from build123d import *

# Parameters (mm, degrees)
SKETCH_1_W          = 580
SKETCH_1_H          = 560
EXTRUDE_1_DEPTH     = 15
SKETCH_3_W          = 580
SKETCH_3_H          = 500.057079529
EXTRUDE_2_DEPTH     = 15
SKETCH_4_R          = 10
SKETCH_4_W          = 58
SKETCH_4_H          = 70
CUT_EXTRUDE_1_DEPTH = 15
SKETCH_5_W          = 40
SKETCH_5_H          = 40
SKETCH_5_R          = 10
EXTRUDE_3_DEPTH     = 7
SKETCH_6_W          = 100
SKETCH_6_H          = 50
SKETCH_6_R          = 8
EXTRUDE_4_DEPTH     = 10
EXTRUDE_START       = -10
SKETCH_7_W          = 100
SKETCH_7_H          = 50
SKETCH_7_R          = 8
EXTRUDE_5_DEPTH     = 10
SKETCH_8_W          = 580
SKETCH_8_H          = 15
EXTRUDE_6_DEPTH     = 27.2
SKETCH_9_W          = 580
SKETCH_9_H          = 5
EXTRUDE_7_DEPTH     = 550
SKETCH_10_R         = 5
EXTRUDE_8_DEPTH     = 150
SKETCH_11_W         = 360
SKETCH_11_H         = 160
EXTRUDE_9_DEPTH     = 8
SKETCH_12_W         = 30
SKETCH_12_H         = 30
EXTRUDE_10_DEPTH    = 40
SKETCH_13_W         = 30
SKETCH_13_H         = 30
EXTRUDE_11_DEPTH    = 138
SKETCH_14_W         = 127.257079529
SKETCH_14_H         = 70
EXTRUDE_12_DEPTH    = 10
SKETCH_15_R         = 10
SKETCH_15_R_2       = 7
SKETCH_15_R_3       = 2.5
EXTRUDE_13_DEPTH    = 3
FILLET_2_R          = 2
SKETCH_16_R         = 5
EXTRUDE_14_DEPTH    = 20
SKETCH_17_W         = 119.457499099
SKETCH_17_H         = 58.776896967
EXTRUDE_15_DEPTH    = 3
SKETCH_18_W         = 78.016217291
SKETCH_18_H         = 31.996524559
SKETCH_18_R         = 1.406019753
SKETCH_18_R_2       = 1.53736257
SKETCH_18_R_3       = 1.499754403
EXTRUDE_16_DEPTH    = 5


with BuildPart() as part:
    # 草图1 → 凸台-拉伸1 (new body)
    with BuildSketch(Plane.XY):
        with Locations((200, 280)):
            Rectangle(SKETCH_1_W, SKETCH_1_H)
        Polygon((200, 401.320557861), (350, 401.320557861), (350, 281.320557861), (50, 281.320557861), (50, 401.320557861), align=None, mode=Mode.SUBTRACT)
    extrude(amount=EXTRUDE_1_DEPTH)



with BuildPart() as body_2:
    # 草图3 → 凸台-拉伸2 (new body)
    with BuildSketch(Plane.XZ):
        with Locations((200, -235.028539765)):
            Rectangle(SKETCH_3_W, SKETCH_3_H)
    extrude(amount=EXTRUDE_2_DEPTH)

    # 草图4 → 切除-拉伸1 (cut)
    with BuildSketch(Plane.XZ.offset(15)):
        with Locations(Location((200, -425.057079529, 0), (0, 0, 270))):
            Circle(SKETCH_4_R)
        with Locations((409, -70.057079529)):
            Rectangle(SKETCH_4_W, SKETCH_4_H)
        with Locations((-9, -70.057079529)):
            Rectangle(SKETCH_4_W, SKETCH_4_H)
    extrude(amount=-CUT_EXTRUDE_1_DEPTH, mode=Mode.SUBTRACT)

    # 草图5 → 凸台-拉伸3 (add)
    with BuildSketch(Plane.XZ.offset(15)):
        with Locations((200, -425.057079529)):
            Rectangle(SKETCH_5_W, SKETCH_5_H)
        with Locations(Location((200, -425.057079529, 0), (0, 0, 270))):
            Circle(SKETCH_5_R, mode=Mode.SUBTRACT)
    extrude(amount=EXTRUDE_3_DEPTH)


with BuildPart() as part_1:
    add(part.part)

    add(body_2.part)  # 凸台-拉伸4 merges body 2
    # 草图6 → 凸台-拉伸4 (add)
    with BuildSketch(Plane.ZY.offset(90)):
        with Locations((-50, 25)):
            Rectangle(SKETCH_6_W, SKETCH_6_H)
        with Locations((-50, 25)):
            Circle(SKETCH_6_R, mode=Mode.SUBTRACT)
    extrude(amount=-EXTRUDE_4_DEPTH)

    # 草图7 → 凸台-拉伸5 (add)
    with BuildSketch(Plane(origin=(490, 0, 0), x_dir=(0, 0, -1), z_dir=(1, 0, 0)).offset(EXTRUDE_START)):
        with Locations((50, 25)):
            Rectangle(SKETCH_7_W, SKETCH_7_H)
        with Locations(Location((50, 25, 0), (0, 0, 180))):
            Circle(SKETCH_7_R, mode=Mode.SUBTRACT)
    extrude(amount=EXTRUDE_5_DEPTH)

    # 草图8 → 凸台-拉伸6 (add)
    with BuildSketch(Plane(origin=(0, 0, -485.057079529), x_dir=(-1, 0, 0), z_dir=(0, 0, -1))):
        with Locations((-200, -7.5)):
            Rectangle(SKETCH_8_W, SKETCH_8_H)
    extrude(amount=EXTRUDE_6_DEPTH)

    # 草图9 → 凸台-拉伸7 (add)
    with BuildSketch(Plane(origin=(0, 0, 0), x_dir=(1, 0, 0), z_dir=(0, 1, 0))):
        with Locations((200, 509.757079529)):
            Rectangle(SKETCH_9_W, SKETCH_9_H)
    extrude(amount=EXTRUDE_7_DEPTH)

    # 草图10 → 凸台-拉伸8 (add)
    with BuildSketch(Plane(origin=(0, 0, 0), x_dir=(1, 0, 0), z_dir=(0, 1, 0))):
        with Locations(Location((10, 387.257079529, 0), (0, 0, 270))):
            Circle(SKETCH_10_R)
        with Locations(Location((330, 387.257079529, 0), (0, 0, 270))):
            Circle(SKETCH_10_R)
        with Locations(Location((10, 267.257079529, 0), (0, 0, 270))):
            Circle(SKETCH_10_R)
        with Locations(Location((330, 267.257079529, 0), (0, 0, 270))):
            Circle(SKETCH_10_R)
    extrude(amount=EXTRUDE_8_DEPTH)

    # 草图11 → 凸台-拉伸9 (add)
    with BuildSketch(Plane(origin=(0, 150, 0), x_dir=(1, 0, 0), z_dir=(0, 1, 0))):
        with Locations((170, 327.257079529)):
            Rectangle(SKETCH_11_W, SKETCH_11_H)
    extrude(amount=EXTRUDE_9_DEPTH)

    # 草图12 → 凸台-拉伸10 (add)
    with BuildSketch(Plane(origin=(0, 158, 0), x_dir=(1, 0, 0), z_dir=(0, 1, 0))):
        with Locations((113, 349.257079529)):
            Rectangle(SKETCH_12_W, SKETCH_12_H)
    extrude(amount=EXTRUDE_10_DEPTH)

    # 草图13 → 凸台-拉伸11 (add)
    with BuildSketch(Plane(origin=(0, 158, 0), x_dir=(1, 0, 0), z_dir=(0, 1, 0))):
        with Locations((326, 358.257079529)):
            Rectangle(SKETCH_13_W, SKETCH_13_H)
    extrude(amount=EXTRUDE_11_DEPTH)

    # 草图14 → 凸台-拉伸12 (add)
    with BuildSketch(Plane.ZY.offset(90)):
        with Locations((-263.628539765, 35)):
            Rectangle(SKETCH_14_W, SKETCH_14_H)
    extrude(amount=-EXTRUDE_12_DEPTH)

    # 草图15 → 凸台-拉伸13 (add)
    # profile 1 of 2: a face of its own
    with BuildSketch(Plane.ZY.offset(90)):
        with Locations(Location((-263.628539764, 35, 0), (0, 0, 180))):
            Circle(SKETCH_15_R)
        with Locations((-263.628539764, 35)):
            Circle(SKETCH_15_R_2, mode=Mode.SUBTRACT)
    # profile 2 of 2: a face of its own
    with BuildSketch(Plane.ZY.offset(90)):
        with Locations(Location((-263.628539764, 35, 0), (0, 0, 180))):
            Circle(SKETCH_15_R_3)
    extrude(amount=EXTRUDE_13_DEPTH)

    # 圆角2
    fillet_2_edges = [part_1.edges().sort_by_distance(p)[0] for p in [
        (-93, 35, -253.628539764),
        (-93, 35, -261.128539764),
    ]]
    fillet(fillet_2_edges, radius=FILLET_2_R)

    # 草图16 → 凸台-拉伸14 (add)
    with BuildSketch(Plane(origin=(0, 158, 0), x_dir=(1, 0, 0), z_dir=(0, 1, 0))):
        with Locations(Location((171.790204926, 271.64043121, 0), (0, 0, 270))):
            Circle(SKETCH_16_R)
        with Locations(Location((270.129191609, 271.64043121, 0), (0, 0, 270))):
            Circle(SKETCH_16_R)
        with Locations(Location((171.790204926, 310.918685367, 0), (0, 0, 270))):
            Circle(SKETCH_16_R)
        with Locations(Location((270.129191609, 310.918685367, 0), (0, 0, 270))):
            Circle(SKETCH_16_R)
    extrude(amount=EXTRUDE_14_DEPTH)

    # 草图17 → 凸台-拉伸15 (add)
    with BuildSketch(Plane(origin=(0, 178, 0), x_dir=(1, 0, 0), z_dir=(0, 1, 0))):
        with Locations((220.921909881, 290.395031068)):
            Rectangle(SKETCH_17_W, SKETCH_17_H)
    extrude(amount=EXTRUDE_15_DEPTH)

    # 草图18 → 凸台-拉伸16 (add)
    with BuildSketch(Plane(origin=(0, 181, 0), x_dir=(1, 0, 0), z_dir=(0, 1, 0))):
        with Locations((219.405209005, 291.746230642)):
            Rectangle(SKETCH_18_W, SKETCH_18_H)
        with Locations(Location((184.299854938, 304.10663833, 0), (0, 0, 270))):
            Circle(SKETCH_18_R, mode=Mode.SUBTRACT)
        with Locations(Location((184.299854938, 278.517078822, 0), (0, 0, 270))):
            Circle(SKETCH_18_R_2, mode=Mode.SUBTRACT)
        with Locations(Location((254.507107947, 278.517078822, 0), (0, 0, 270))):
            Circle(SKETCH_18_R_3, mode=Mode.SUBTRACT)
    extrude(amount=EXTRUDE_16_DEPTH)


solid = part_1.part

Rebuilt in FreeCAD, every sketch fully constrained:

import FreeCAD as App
import Part
import Sketcher


def edges_at(feature, points):
    """Names of the edges that pass closest to the given points."""
    edges = feature.Shape.Edges
    near = lambda p: min(range(len(edges)), key=lambda i: edges[i].distToShape(Part.Vertex(*p))[0])
    return sorted({f"Edge{near(p) + 1}" for p in points})

doc = App.newDocument("Part")
body = doc.addObject("PartDesign::Body", "Body")

sketch1 = doc.addObject("Sketcher::SketchObject", "Sketch")
body.addObject(sketch1)
sketch1.AttachmentSupport = (doc.XY_Plane, [""])
sketch1.MapMode = "FlatFace"
sketch1.addGeometry([
    Part.LineSegment(App.Vector(-90, 560, 0), App.Vector(-90, 0, 0)),
    Part.LineSegment(App.Vector(-90, 0, 0), App.Vector(490, 0, 0)),
    Part.LineSegment(App.Vector(490, 0, 0), App.Vector(490, 560, 0)),
    Part.LineSegment(App.Vector(490, 560, 0), App.Vector(-90, 560, 0)),
    Part.LineSegment(App.Vector(50, 401.320558, 0), App.Vector(350, 401.320558, 0)),
    Part.LineSegment(App.Vector(350, 401.320558, 0), App.Vector(350, 281.320558, 0)),
    Part.LineSegment(App.Vector(350, 281.320558, 0), App.Vector(50, 281.320558, 0)),
    Part.LineSegment(App.Vector(50, 281.320558, 0), App.Vector(50, 401.320558, 0)),
], False)
sketch1.addConstraint([
    Sketcher.Constraint("Coincident", 0, 2, 1, 1),
    Sketcher.Constraint("Coincident", 1, 2, 2, 1),
    Sketcher.Constraint("Coincident", 2, 2, 3, 1),
    Sketcher.Constraint("Coincident", 3, 2, 0, 1),
    Sketcher.Constraint("Coincident", 4, 2, 5, 1),
    Sketcher.Constraint("Coincident", 5, 2, 6, 1),
    Sketcher.Constraint("Coincident", 6, 2, 7, 1),
    Sketcher.Constraint("Coincident", 7, 2, 4, 1),
    Sketcher.Constraint("Vertical", 0),
    Sketcher.Constraint("Horizontal", 1),
    Sketcher.Constraint("Vertical", 2),
    Sketcher.Constraint("Horizontal", 3),
    Sketcher.Constraint("Horizontal", 4),
    Sketcher.Constraint("Vertical", 5),
    Sketcher.Constraint("Horizontal", 6),
    Sketcher.Constraint("Vertical", 7),
    Sketcher.Constraint("PointOnObject", 0, 2, -1),
    Sketcher.Constraint("DistanceX", 1, 1, 1, 2, 580.0),
    Sketcher.Constraint("DistanceX", 4, 1, 4, 2, 300.0),
    Sketcher.Constraint("DistanceY", 0, 2, 0, 1, 560.0),
    Sketcher.Constraint("DistanceY", 5, 2, 5, 1, 120.0),
    Sketcher.Constraint("DistanceX", 0, 2, -1, 1, 90.0),
    Sketcher.Constraint("DistanceX", -1, 1, 4, 2, 350.0),
    Sketcher.Constraint("DistanceY", -1, 1, 4, 2, 401.320558),
])
pad1 = doc.addObject("PartDesign::Pad", "Pad")
body.addObject(pad1)
pad1.Profile = sketch1
pad1.Length = 15
body2 = doc.addObject("PartDesign::Body", "Body001")

sketch2 = doc.addObject("Sketcher::SketchObject", "Sketch001")
body2.addObject(sketch2)
sketch2.AttachmentSupport = (doc.getObject("XZ_Plane001"), [""])
sketch2.MapMode = "FlatFace"
sketch2.addGeometry([
    Part.LineSegment(App.Vector(-90, 15, 0), App.Vector(-90, -485.05708, 0)),
    Part.LineSegment(App.Vector(-90, -485.05708, 0), App.Vector(490, -485.05708, 0)),
    Part.LineSegment(App.Vector(490, -485.05708, 0), App.Vector(490, 15, 0)),
    Part.LineSegment(App.Vector(490, 15, 0), App.Vector(-90, 15, 0)),
], False)
sketch2.addConstraint([
    Sketcher.Constraint("Coincident", 0, 2, 1, 1),
    Sketcher.Constraint("Coincident", 1, 2, 2, 1),
    Sketcher.Constraint("Coincident", 2, 2, 3, 1),
    Sketcher.Constraint("Coincident", 3, 2, 0, 1),
    Sketcher.Constraint("Vertical", 0),
    Sketcher.Constraint("Horizontal", 1),
    Sketcher.Constraint("Vertical", 2),
    Sketcher.Constraint("Horizontal", 3),
    Sketcher.Constraint("DistanceX", 1, 1, 1, 2, 580.0),
    Sketcher.Constraint("DistanceX", 0, 2, -1, 1, 90.0),
    Sketcher.Constraint("DistanceY", -1, 1, 2, 2, 15.0),
    Sketcher.Constraint("DistanceY", 0, 2, 0, 1, 500.05708),
])
pad2 = doc.addObject("PartDesign::Pad", "Pad001")
body2.addObject(pad2)
pad2.Profile = sketch2
pad2.Length = 15

sketch3 = doc.addObject("Sketcher::SketchObject", "Sketch002")
body2.addObject(sketch3)
sketch3.AttachmentSupport = (doc.getObject("XZ_Plane001"), [""])
sketch3.MapMode = "FlatFace"
sketch3.AttachmentOffset = App.Placement(App.Vector(0, 0, 15), App.Rotation())
sketch3.addGeometry([
    Part.Circle(App.Vector(200, -425.05708, 0), App.Vector(0, 0, 1), 10),
    Part.LineSegment(App.Vector(380, -35.05708, 0), App.Vector(380, -105.05708, 0)),
    Part.LineSegment(App.Vector(380, -105.05708, 0), App.Vector(438, -105.05708, 0)),
    Part.LineSegment(App.Vector(438, -105.05708, 0), App.Vector(438, -35.05708, 0)),
    Part.LineSegment(App.Vector(438, -35.05708, 0), App.Vector(380, -35.05708, 0)),
    Part.LineSegment(App.Vector(-38, -35.05708, 0), App.Vector(-38, -105.05708, 0)),
    Part.LineSegment(App.Vector(-38, -105.05708, 0), App.Vector(20, -105.05708, 0)),
    Part.LineSegment(App.Vector(20, -105.05708, 0), App.Vector(20, -35.05708, 0)),
    Part.LineSegment(App.Vector(20, -35.05708, 0), App.Vector(-38, -35.05708, 0)),
], False)
sketch3.addConstraint([
    Sketcher.Constraint("Coincident", 1, 2, 2, 1),
    Sketcher.Constraint("Coincident", 2, 2, 3, 1),
    Sketcher.Constraint("Coincident", 3, 2, 4, 1),
    Sketcher.Constraint("Coincident", 4, 2, 1, 1),
    Sketcher.Constraint("Coincident", 5, 2, 6, 1),
    Sketcher.Constraint("Coincident", 6, 2, 7, 1),
    Sketcher.Constraint("Coincident", 7, 2, 8, 1),
    Sketcher.Constraint("Coincident", 8, 2, 5, 1),
    Sketcher.Constraint("Vertical", 1),
    Sketcher.Constraint("Horizontal", 2),
    Sketcher.Constraint("Vertical", 3),
    Sketcher.Constraint("Horizontal", 4),
    Sketcher.Constraint("Vertical", 5),
    Sketcher.Constraint("Horizontal", 6),
    Sketcher.Constraint("Vertical", 7),
    Sketcher.Constraint("Horizontal", 8),
    Sketcher.Constraint("Horizontal", 2, 2, 5, 2),
    Sketcher.Constraint("Horizontal", 4, 2, 7, 2),
    Sketcher.Constraint("Equal", 4, 6),
    Sketcher.Constraint("Diameter", 0, 20.0),
    Sketcher.Constraint("DistanceX", 2, 1, 2, 2, 58.0),
    Sketcher.Constraint("DistanceY", 1, 2, 1, 1, 70.0),
    Sketcher.Constraint("DistanceX", -1, 1, 0, 3, 200.0),
    Sketcher.Constraint("DistanceX", -1, 1, 1, 2, 380.0),
    Sketcher.Constraint("DistanceX", 5, 2, -1, 1, 38.0),
    Sketcher.Constraint("DistanceY", 0, 3, 1, 2, 320.0),
    Sketcher.Constraint("DistanceY", 0, 3, -1, 1, 425.05708),
])
pocket1 = doc.addObject("PartDesign::Pocket", "Pocket")
body2.addObject(pocket1)
pocket1.Profile = sketch3
pocket1.Length = 15

sketch4 = doc.addObject("Sketcher::SketchObject", "Sketch003")
body2.addObject(sketch4)
sketch4.AttachmentSupport = (doc.getObject("XZ_Plane001"), [""])
sketch4.MapMode = "FlatFace"
sketch4.AttachmentOffset = App.Placement(App.Vector(0, 0, 15), App.Rotation())
sketch4.addGeometry([
    Part.LineSegment(App.Vector(180, -405.05708, 0), App.Vector(180, -445.05708, 0)),
    Part.LineSegment(App.Vector(180, -445.05708, 0), App.Vector(220, -445.05708, 0)),
    Part.LineSegment(App.Vector(220, -445.05708, 0), App.Vector(220, -405.05708, 0)),
    Part.LineSegment(App.Vector(220, -405.05708, 0), App.Vector(180, -405.05708, 0)),
    Part.Circle(App.Vector(200, -425.05708, 0), App.Vector(0, 0, 1), 10),
], False)
sketch4.addConstraint([
    Sketcher.Constraint("Coincident", 0, 2, 1, 1),
    Sketcher.Constraint("Coincident", 1, 2, 2, 1),
    Sketcher.Constraint("Coincident", 2, 2, 3, 1),
    Sketcher.Constraint("Coincident", 3, 2, 0, 1),
    Sketcher.Constraint("Vertical", 0),
    Sketcher.Constraint("Horizontal", 1),
    Sketcher.Constraint("Vertical", 2),
    Sketcher.Constraint("Horizontal", 3),
    Sketcher.Constraint("Equal", 3, 0),
    Sketcher.Constraint("Diameter", 4, 20.0),
    Sketcher.Constraint("DistanceX", 1, 1, 1, 2, 40.0),
    Sketcher.Constraint("DistanceX", -1, 1, 4, 3, 200.0),
    Sketcher.Constraint("DistanceX", -1, 1, 0, 2, 180.0),
    Sketcher.Constraint("DistanceY", 0, 2, 4, 3, 20.0),
    Sketcher.Constraint("DistanceY", 4, 3, -1, 1, 425.05708),
])
pad3 = doc.addObject("PartDesign::Pad", "Pad002")
body2.addObject(pad3)
pad3.Profile = sketch4
pad3.Length = 7
doc.recompute()

boolean = doc.addObject("PartDesign::Boolean", "Boolean")
body.addObject(boolean)
boolean.Type = "Fuse"
boolean.addObjects([body2])

sketch5 = doc.addObject("Sketcher::SketchObject", "Sketch004")
body.addObject(sketch5)
sketch5.AttachmentSupport = (doc.YZ_Plane, [""])
sketch5.MapMode = "FlatFace"
sketch5.AttachmentOffset = App.Placement(App.Vector(0, 0, -90), App.Rotation())
sketch5.addGeometry([
    Part.LineSegment(App.Vector(50, -100, 0), App.Vector(0, -100, 0)),
    Part.LineSegment(App.Vector(0, -100, 0), App.Vector(0, 0, 0)),
    Part.LineSegment(App.Vector(0, 0, 0), App.Vector(50, 0, 0)),
    Part.LineSegment(App.Vector(50, 0, 0), App.Vector(50, -100, 0)),
    Part.Circle(App.Vector(25, -50, 0), App.Vector(0, 0, 1), 8),
], False)
sketch5.addConstraint([
    Sketcher.Constraint("Coincident", 0, 2, 1, 1),
    Sketcher.Constraint("Coincident", 1, 2, 2, 1),
    Sketcher.Constraint("Coincident", 2, 2, 3, 1),
    Sketcher.Constraint("Coincident", 3, 2, 0, 1),
    Sketcher.Constraint("Horizontal", 0),
    Sketcher.Constraint("Vertical", 1),
    Sketcher.Constraint("Horizontal", 2),
    Sketcher.Constraint("Vertical", 3),
    Sketcher.Constraint("Coincident", 1, 2, -1, 1),
    Sketcher.Constraint("Diameter", 4, 16.0),
    Sketcher.Constraint("DistanceX", 0, 2, 0, 1, 50.0),
    Sketcher.Constraint("DistanceY", 1, 1, 1, 2, 100.0),
    Sketcher.Constraint("DistanceX", -1, 1, 4, 3, 25.0),
    Sketcher.Constraint("DistanceY", 4, 3, -1, 1, 50.0),
])
pad4 = doc.addObject("PartDesign::Pad", "Pad003")
body.addObject(pad4)
pad4.Profile = sketch5
pad4.Length = 10

sketch6 = doc.addObject("Sketcher::SketchObject", "Sketch005")
body.addObject(sketch6)
sketch6.AttachmentSupport = (doc.YZ_Plane, [""])
sketch6.MapMode = "FlatFace"
sketch6.AttachmentOffset = App.Placement(App.Vector(0, 0, 480), App.Rotation())
sketch6.addGeometry([
    Part.LineSegment(App.Vector(50, 0, 0), App.Vector(0, 0, 0)),
    Part.LineSegment(App.Vector(0, 0, 0), App.Vector(0, -100, 0)),
    Part.LineSegment(App.Vector(0, -100, 0), App.Vector(50, -100, 0)),
    Part.LineSegment(App.Vector(50, -100, 0), App.Vector(50, 0, 0)),
    Part.Circle(App.Vector(25, -50, 0), App.Vector(0, 0, 1), 8),
], False)
sketch6.addConstraint([
    Sketcher.Constraint("Coincident", 0, 2, 1, 1),
    Sketcher.Constraint("Coincident", 1, 2, 2, 1),
    Sketcher.Constraint("Coincident", 2, 2, 3, 1),
    Sketcher.Constraint("Coincident", 3, 2, 0, 1),
    Sketcher.Constraint("Horizontal", 0),
    Sketcher.Constraint("Vertical", 1),
    Sketcher.Constraint("Horizontal", 2),
    Sketcher.Constraint("Vertical", 3),
    Sketcher.Constraint("Coincident", 0, 2, -1, 1),
    Sketcher.Constraint("Diameter", 4, 16.0),
    Sketcher.Constraint("DistanceX", 0, 2, 0, 1, 50.0),
    Sketcher.Constraint("DistanceY", 1, 2, 1, 1, 100.0),
    Sketcher.Constraint("DistanceX", -1, 1, 4, 3, 25.0),
    Sketcher.Constraint("DistanceY", 4, 3, -1, 1, 50.0),
])
pad5 = doc.addObject("PartDesign::Pad", "Pad004")
body.addObject(pad5)
pad5.Profile = sketch6
pad5.Length = 10

sketch7 = doc.addObject("Sketcher::SketchObject", "Sketch006")
body.addObject(sketch7)
sketch7.AttachmentSupport = (doc.XY_Plane, [""])
sketch7.MapMode = "FlatFace"
sketch7.AttachmentOffset = App.Placement(App.Vector(0, 0, -485.05708), App.Rotation())
sketch7.addGeometry([
    Part.LineSegment(App.Vector(490, 0, 0), App.Vector(490, -15, 0)),
    Part.LineSegment(App.Vector(490, -15, 0), App.Vector(-90, -15, 0)),
    Part.LineSegment(App.Vector(-90, -15, 0), App.Vector(-90, 0, 0)),
    Part.LineSegment(App.Vector(-90, 0, 0), App.Vector(490, 0, 0)),
], False)
sketch7.addConstraint([
    Sketcher.Constraint("Coincident", 0, 2, 1, 1),
    Sketcher.Constraint("Coincident", 1, 2, 2, 1),
    Sketcher.Constraint("Coincident", 2, 2, 3, 1),
    Sketcher.Constraint("Coincident", 3, 2, 0, 1),
    Sketcher.Constraint("Vertical", 0),
    Sketcher.Constraint("Horizontal", 1),
    Sketcher.Constraint("Vertical", 2),
    Sketcher.Constraint("Horizontal", 3),
    Sketcher.Constraint("PointOnObject", 2, 2, -1),
    Sketcher.Constraint("DistanceX", 1, 2, 1, 1, 580.0),
    Sketcher.Constraint("DistanceY", 0, 2, 0, 1, 15.0),
    Sketcher.Constraint("DistanceX", -1, 1, 0, 2, 490.0),
])
pad6 = doc.addObject("PartDesign::Pad", "Pad005")
body.addObject(pad6)
pad6.Profile = sketch7
pad6.Length = 27.2
pad6.Reversed = True

sketch8 = doc.addObject("Sketcher::SketchObject", "Sketch007")
body.addObject(sketch8)
sketch8.AttachmentSupport = (doc.XZ_Plane, [""])
sketch8.MapMode = "FlatFace"
sketch8.addGeometry([
    Part.LineSegment(App.Vector(-90, -512.25708, 0), App.Vector(-90, -507.25708, 0)),
    Part.LineSegment(App.Vector(-90, -507.25708, 0), App.Vector(490, -507.25708, 0)),
    Part.LineSegment(App.Vector(490, -507.25708, 0), App.Vector(490, -512.25708, 0)),
    Part.LineSegment(App.Vector(490, -512.25708, 0), App.Vector(-90, -512.25708, 0)),
], False)
sketch8.addConstraint([
    Sketcher.Constraint("Coincident", 0, 2, 1, 1),
    Sketcher.Constraint("Coincident", 1, 2, 2, 1),
    Sketcher.Constraint("Coincident", 2, 2, 3, 1),
    Sketcher.Constraint("Coincident", 3, 2, 0, 1),
    Sketcher.Constraint("Vertical", 0),
    Sketcher.Constraint("Horizontal", 1),
    Sketcher.Constraint("Vertical", 2),
    Sketcher.Constraint("Horizontal", 3),
    Sketcher.Constraint("DistanceX", 1, 1, 1, 2, 580.0),
    Sketcher.Constraint("DistanceY", 0, 1, 0, 2, 5.0),
    Sketcher.Constraint("DistanceX", 0, 2, -1, 1, 90.0),
    Sketcher.Constraint("DistanceY", 0, 2, -1, 1, 507.25708),
])
pad7 = doc.addObject("PartDesign::Pad", "Pad006")
body.addObject(pad7)
pad7.Profile = sketch8
pad7.Length = 550
pad7.Reversed = True

sketch9 = doc.addObject("Sketcher::SketchObject", "Sketch008")
body.addObject(sketch9)
sketch9.AttachmentSupport = (doc.XZ_Plane, [""])
sketch9.MapMode = "FlatFace"
sketch9.addGeometry([
    Part.Circle(App.Vector(10, -387.25708, 0), App.Vector(0, 0, 1), 5),
    Part.Circle(App.Vector(330, -387.25708, 0), App.Vector(0, 0, 1), 5),
    Part.Circle(App.Vector(10, -267.25708, 0), App.Vector(0, 0, 1), 5),
    Part.Circle(App.Vector(330, -267.25708, 0), App.Vector(0, 0, 1), 5),
], False)
sketch9.addConstraint([
    Sketcher.Constraint("Equal", 0, 1),
    Sketcher.Constraint("Equal", 1, 2),
    Sketcher.Constraint("Equal", 2, 3),
    Sketcher.Constraint("Horizontal", 0, 3, 1, 3),
    Sketcher.Constraint("Horizontal", 2, 3, 3, 3),
    Sketcher.Constraint("Vertical", 0, 3, 2, 3),
    Sketcher.Constraint("Vertical", 1, 3, 3, 3),
    Sketcher.Constraint("Diameter", 0, 10.0),
    Sketcher.Constraint("DistanceX", -1, 1, 0, 3, 10.0),
    Sketcher.Constraint("DistanceX", -1, 1, 1, 3, 330.0),
    Sketcher.Constraint("DistanceY", 0, 3, 2, 3, 120.0),
    Sketcher.Constraint("DistanceY", 0, 3, -1, 1, 387.25708),
])
pad8 = doc.addObject("PartDesign::Pad", "Pad007")
body.addObject(pad8)
pad8.Profile = sketch9
pad8.Length = 150
pad8.Reversed = True

sketch10 = doc.addObject("Sketcher::SketchObject", "Sketch009")
body.addObject(sketch10)
sketch10.AttachmentSupport = (doc.XZ_Plane, [""])
sketch10.MapMode = "FlatFace"
sketch10.AttachmentOffset = App.Placement(App.Vector(0, 0, -150), App.Rotation())
sketch10.addGeometry([
    Part.LineSegment(App.Vector(-10, -407.25708, 0), App.Vector(-10, -247.25708, 0)),
    Part.LineSegment(App.Vector(-10, -247.25708, 0), App.Vector(350, -247.25708, 0)),
    Part.LineSegment(App.Vector(350, -247.25708, 0), App.Vector(350, -407.25708, 0)),
    Part.LineSegment(App.Vector(350, -407.25708, 0), App.Vector(-10, -407.25708, 0)),
], False)
sketch10.addConstraint([
    Sketcher.Constraint("Coincident", 0, 2, 1, 1),
    Sketcher.Constraint("Coincident", 1, 2, 2, 1),
    Sketcher.Constraint("Coincident", 2, 2, 3, 1),
    Sketcher.Constraint("Coincident", 3, 2, 0, 1),
    Sketcher.Constraint("Vertical", 0),
    Sketcher.Constraint("Horizontal", 1),
    Sketcher.Constraint("Vertical", 2),
    Sketcher.Constraint("Horizontal", 3),
    Sketcher.Constraint("DistanceX", 1, 1, 1, 2, 360.0),
    Sketcher.Constraint("DistanceY", 0, 1, 0, 2, 160.0),
    Sketcher.Constraint("DistanceX", 0, 2, -1, 1, 10.0),
    Sketcher.Constraint("DistanceY", 0, 2, -1, 1, 247.25708),
])
pad9 = doc.addObject("PartDesign::Pad", "Pad008")
body.addObject(pad9)
pad9.Profile = sketch10
pad9.Length = 8
pad9.Reversed = True

sketch11 = doc.addObject("Sketcher::SketchObject", "Sketch010")
body.addObject(sketch11)
sketch11.AttachmentSupport = (doc.XZ_Plane, [""])
sketch11.MapMode = "FlatFace"
sketch11.AttachmentOffset = App.Placement(App.Vector(0, 0, -158), App.Rotation())
sketch11.addGeometry([
    Part.LineSegment(App.Vector(98, -364.25708, 0), App.Vector(98, -334.25708, 0)),
    Part.LineSegment(App.Vector(98, -334.25708, 0), App.Vector(128, -334.25708, 0)),
    Part.LineSegment(App.Vector(128, -334.25708, 0), App.Vector(128, -364.25708, 0)),
    Part.LineSegment(App.Vector(128, -364.25708, 0), App.Vector(98, -364.25708, 0)),
], False)
sketch11.addConstraint([
    Sketcher.Constraint("Coincident", 0, 2, 1, 1),
    Sketcher.Constraint("Coincident", 1, 2, 2, 1),
    Sketcher.Constraint("Coincident", 2, 2, 3, 1),
    Sketcher.Constraint("Coincident", 3, 2, 0, 1),
    Sketcher.Constraint("Vertical", 0),
    Sketcher.Constraint("Horizontal", 1),
    Sketcher.Constraint("Vertical", 2),
    Sketcher.Constraint("Horizontal", 3),
    Sketcher.Constraint("Equal", 3, 0),
    Sketcher.Constraint("DistanceX", 1, 1, 1, 2, 30.0),
    Sketcher.Constraint("DistanceX", -1, 1, 0, 2, 98.0),
    Sketcher.Constraint("DistanceY", 0, 2, -1, 1, 334.25708),
])
pad10 = doc.addObject("PartDesign::Pad", "Pad009")
body.addObject(pad10)
pad10.Profile = sketch11
pad10.Length = 40
pad10.Reversed = True

sketch12 = doc.addObject("Sketcher::SketchObject", "Sketch011")
body.addObject(sketch12)
sketch12.AttachmentSupport = (doc.XZ_Plane, [""])
sketch12.MapMode = "FlatFace"
sketch12.AttachmentOffset = App.Placement(App.Vector(0, 0, -158), App.Rotation())
sketch12.addGeometry([
    Part.LineSegment(App.Vector(311, -373.25708, 0), App.Vector(311, -343.25708, 0)),
    Part.LineSegment(App.Vector(311, -343.25708, 0), App.Vector(341, -343.25708, 0)),
    Part.LineSegment(App.Vector(341, -343.25708, 0), App.Vector(341, -373.25708, 0)),
    Part.LineSegment(App.Vector(341, -373.25708, 0), App.Vector(311, -373.25708, 0)),
], False)
sketch12.addConstraint([
    Sketcher.Constraint("Coincident", 0, 2, 1, 1),
    Sketcher.Constraint("Coincident", 1, 2, 2, 1),
    Sketcher.Constraint("Coincident", 2, 2, 3, 1),
    Sketcher.Constraint("Coincident", 3, 2, 0, 1),
    Sketcher.Constraint("Vertical", 0),
    Sketcher.Constraint("Horizontal", 1),
    Sketcher.Constraint("Vertical", 2),
    Sketcher.Constraint("Horizontal", 3),
    Sketcher.Constraint("Equal", 3, 0),
    Sketcher.Constraint("DistanceX", 1, 1, 1, 2, 30.0),
    Sketcher.Constraint("DistanceX", -1, 1, 0, 2, 311.0),
    Sketcher.Constraint("DistanceY", 0, 2, -1, 1, 343.25708),
])
pad11 = doc.addObject("PartDesign::Pad", "Pad010")
body.addObject(pad11)
pad11.Profile = sketch12
pad11.Length = 138
pad11.Reversed = True

sketch13 = doc.addObject("Sketcher::SketchObject", "Sketch012")
body.addObject(sketch13)
sketch13.AttachmentSupport = (doc.YZ_Plane, [""])
sketch13.MapMode = "FlatFace"
sketch13.AttachmentOffset = App.Placement(App.Vector(0, 0, -90), App.Rotation())
sketch13.addGeometry([
    Part.LineSegment(App.Vector(70, -327.25708, 0), App.Vector(0, -327.25708, 0)),
    Part.LineSegment(App.Vector(0, -327.25708, 0), App.Vector(0, -200, 0)),
    Part.LineSegment(App.Vector(0, -200, 0), App.Vector(70, -200, 0)),
    Part.LineSegment(App.Vector(70, -200, 0), App.Vector(70, -327.25708, 0)),
], False)
sketch13.addConstraint([
    Sketcher.Constraint("Coincident", 0, 2, 1, 1),
    Sketcher.Constraint("Coincident", 1, 2, 2, 1),
    Sketcher.Constraint("Coincident", 2, 2, 3, 1),
    Sketcher.Constraint("Coincident", 3, 2, 0, 1),
    Sketcher.Constraint("Horizontal", 0),
    Sketcher.Constraint("Vertical", 1),
    Sketcher.Constraint("Horizontal", 2),
    Sketcher.Constraint("Vertical", 3),
    Sketcher.Constraint("PointOnObject", 0, 2, -2),
    Sketcher.Constraint("DistanceX", 0, 2, 0, 1, 70.0),
    Sketcher.Constraint("DistanceY", 1, 2, -1, 1, 200.0),
    Sketcher.Constraint("DistanceY", 1, 1, 1, 2, 127.25708),
])
pad12 = doc.addObject("PartDesign::Pad", "Pad011")
body.addObject(pad12)
pad12.Profile = sketch13
pad12.Length = 10

sketch14 = doc.addObject("Sketcher::SketchObject", "Sketch013")
body.addObject(sketch14)
sketch14.AttachmentSupport = (doc.YZ_Plane, [""])
sketch14.MapMode = "FlatFace"
sketch14.AttachmentOffset = App.Placement(App.Vector(0, 0, -90), App.Rotation())
sketch14.addGeometry([
    Part.Circle(App.Vector(35, -263.62854, 0), App.Vector(0, 0, 1), 10),
    Part.Circle(App.Vector(35, -263.62854, 0), App.Vector(0, 0, 1), 7),
    Part.Circle(App.Vector(35, -263.62854, 0), App.Vector(0, 0, 1), 2.5),
], False)
sketch14.addConstraint([
    Sketcher.Constraint("Coincident", 1, 3, 0, 3),
    Sketcher.Constraint("Coincident", 2, 3, 0, 3),
    Sketcher.Constraint("Diameter", 0, 20.0),
    Sketcher.Constraint("Diameter", 1, 14.0),
    Sketcher.Constraint("Diameter", 2, 5.0),
    Sketcher.Constraint("DistanceX", -1, 1, 0, 3, 35.0),
    Sketcher.Constraint("DistanceY", 0, 3, -1, 1, 263.62854),
])
pad13 = doc.addObject("PartDesign::Pad", "Pad012")
body.addObject(pad13)
pad13.Profile = sketch14
pad13.Length = 3
pad13.Reversed = True
doc.recompute()

fillet = doc.addObject("PartDesign::Fillet", "Fillet")
body.addObject(fillet)
fillet.Base = (pad13, edges_at(pad13, [(-93, 35, -253.629), (-93, 35, -261.129)]))
fillet.Radius = 2

sketch15 = doc.addObject("Sketcher::SketchObject", "Sketch014")
body.addObject(sketch15)
sketch15.AttachmentSupport = (doc.XZ_Plane, [""])
sketch15.MapMode = "FlatFace"
sketch15.AttachmentOffset = App.Placement(App.Vector(0, 0, -158), App.Rotation())
sketch15.addGeometry([
    Part.Circle(App.Vector(171.790205, -271.640431, 0), App.Vector(0, 0, 1), 5),
    Part.Circle(App.Vector(270.129192, -271.640431, 0), App.Vector(0, 0, 1), 5),
    Part.Circle(App.Vector(171.790205, -310.918685, 0), App.Vector(0, 0, 1), 5),
    Part.Circle(App.Vector(270.129192, -310.918685, 0), App.Vector(0, 0, 1), 5),
], False)
sketch15.addConstraint([
    Sketcher.Constraint("Equal", 0, 1),
    Sketcher.Constraint("Equal", 1, 2),
    Sketcher.Constraint("Equal", 2, 3),
    Sketcher.Constraint("Horizontal", 0, 3, 1, 3),
    Sketcher.Constraint("Horizontal", 2, 3, 3, 3),
    Sketcher.Constraint("Vertical", 0, 3, 2, 3),
    Sketcher.Constraint("Vertical", 1, 3, 3, 3),
    Sketcher.Constraint("Diameter", 0, 10.0),
    Sketcher.Constraint("DistanceY", 0, 3, -1, 1, 271.640431),
    Sketcher.Constraint("DistanceX", -1, 1, 1, 3, 270.129192),
    Sketcher.Constraint("DistanceX", -1, 1, 0, 3, 171.790205),
    Sketcher.Constraint("DistanceY", 2, 3, -1, 1, 310.918685),
])
pad14 = doc.addObject("PartDesign::Pad", "Pad013")
body.addObject(pad14)
pad14.Profile = sketch15
pad14.Length = 20
pad14.Reversed = True

sketch16 = doc.addObject("Sketcher::SketchObject", "Sketch015")
body.addObject(sketch16)
sketch16.AttachmentSupport = (doc.XZ_Plane, [""])
sketch16.MapMode = "FlatFace"
sketch16.AttachmentOffset = App.Placement(App.Vector(0, 0, -178), App.Rotation())
sketch16.addGeometry([
    Part.LineSegment(App.Vector(161.19316, -319.78348, 0), App.Vector(161.19316, -261.006583, 0)),
    Part.LineSegment(App.Vector(161.19316, -261.006583, 0), App.Vector(280.650659, -261.006583, 0)),
    Part.LineSegment(App.Vector(280.650659, -261.006583, 0), App.Vector(280.650659, -319.78348, 0)),
    Part.LineSegment(App.Vector(280.650659, -319.78348, 0), App.Vector(161.19316, -319.78348, 0)),
], False)
sketch16.addConstraint([
    Sketcher.Constraint("Coincident", 0, 2, 1, 1),
    Sketcher.Constraint("Coincident", 1, 2, 2, 1),
    Sketcher.Constraint("Coincident", 2, 2, 3, 1),
    Sketcher.Constraint("Coincident", 3, 2, 0, 1),
    Sketcher.Constraint("Vertical", 0),
    Sketcher.Constraint("Horizontal", 1),
    Sketcher.Constraint("Vertical", 2),
    Sketcher.Constraint("Horizontal", 3),
    Sketcher.Constraint("DistanceX", 1, 1, 1, 2, 119.457499),
    Sketcher.Constraint("DistanceY", 0, 1, 0, 2, 58.776897),
    Sketcher.Constraint("DistanceX", -1, 1, 0, 2, 161.19316),
    Sketcher.Constraint("DistanceY", 2, 2, -1, 1, 319.78348),
])
pad15 = doc.addObject("PartDesign::Pad", "Pad014")
body.addObject(pad15)
pad15.Profile = sketch16
pad15.Length = 3
pad15.Reversed = True

sketch17 = doc.addObject("Sketcher::SketchObject", "Sketch016")
body.addObject(sketch17)
sketch17.AttachmentSupport = (doc.XZ_Plane, [""])
sketch17.MapMode = "FlatFace"
sketch17.AttachmentOffset = App.Placement(App.Vector(0, 0, -181), App.Rotation())
sketch17.addGeometry([
    Part.LineSegment(App.Vector(180.3971, -307.744493, 0), App.Vector(180.3971, -275.747968, 0)),
    Part.LineSegment(App.Vector(180.3971, -275.747968, 0), App.Vector(258.413318, -275.747968, 0)),
    Part.LineSegment(App.Vector(258.413318, -275.747968, 0), App.Vector(258.413318, -307.744493, 0)),
    Part.LineSegment(App.Vector(258.413318, -307.744493, 0), App.Vector(180.3971, -307.744493, 0)),
    Part.Circle(App.Vector(184.299855, -278.517079, 0), App.Vector(0, 0, 1), 1.537363),
    Part.Circle(App.Vector(254.507108, -278.517079, 0), App.Vector(0, 0, 1), 1.499754),
    Part.Circle(App.Vector(184.299855, -304.106638, 0), App.Vector(0, 0, 1), 1.40602),
], False)
sketch17.addConstraint([
    Sketcher.Constraint("Coincident", 0, 2, 1, 1),
    Sketcher.Constraint("Coincident", 1, 2, 2, 1),
    Sketcher.Constraint("Coincident", 2, 2, 3, 1),
    Sketcher.Constraint("Coincident", 3, 2, 0, 1),
    Sketcher.Constraint("Vertical", 0),
    Sketcher.Constraint("Horizontal", 1),
    Sketcher.Constraint("Vertical", 2),
    Sketcher.Constraint("Horizontal", 3),
    Sketcher.Constraint("Horizontal", 4, 3, 5, 3),
    Sketcher.Constraint("Vertical", 4, 3, 6, 3),
    Sketcher.Constraint("Diameter", 5, 2.999509),
    Sketcher.Constraint("Diameter", 6, 2.81204),
    Sketcher.Constraint("Diameter", 4, 3.074725),
    Sketcher.Constraint("DistanceX", -1, 1, 0, 2, 180.3971),
    Sketcher.Constraint("DistanceX", 1, 1, 1, 2, 78.016217),
    Sketcher.Constraint("DistanceY", 0, 1, 0, 2, 31.996525),
    Sketcher.Constraint("DistanceY", 4, 3, -1, 1, 278.517079),
    Sketcher.Constraint("DistanceY", 6, 3, -1, 1, 304.106638),
    Sketcher.Constraint("DistanceY", 0, 2, -1, 1, 275.747968),
    Sketcher.Constraint("DistanceX", 5, 3, 1, 2, 3.90621),
    Sketcher.Constraint("DistanceX", -1, 1, 4, 3, 184.299855),
])
pad16 = doc.addObject("PartDesign::Pad", "Pad015")
body.addObject(pad16)
pad16.Profile = sketch17
pad16.Length = 5
pad16.Reversed = True

doc.recompute()
